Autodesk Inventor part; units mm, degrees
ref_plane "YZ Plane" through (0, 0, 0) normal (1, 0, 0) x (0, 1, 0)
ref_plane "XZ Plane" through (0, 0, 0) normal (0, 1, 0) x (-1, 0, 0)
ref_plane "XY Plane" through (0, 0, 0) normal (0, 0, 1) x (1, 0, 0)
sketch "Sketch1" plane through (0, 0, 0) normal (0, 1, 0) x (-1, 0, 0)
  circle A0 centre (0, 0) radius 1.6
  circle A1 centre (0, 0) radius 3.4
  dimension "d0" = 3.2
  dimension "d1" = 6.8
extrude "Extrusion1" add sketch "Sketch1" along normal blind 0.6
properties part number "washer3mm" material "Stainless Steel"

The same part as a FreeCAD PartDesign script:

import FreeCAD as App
import Part
import Sketcher
from FreeCAD import Vector
Q = App.Units.Quantity

doc = App.newDocument("Part")
body = doc.addObject("PartDesign::Body", "Body")

# Sketch on XZ plane
sketch1 = body.newObject("Sketcher::SketchObject", "Sketch")
sketch1.AttachmentSupport = (doc.getObject("XZ_Plane"), [""])
sketch1.MapMode = "FlatFace"
sketch1.addGeometry(Part.Circle(Vector(0, 0, 0), Vector(0, 0, 1), 3.4), False)
sketch1.addGeometry(Part.Circle(Vector(0, 0, 0), Vector(0, 0, 1), 1.6), False)
sketch1.addConstraint(Sketcher.Constraint("Coincident", 0, 3, -1, 1))
sketch1.addConstraint(Sketcher.Constraint("Coincident", 1, 3, -1, 1))
sketch1.addConstraint(Sketcher.Constraint("Diameter", 0, Q("6.8 mm")))
sketch1.addConstraint(Sketcher.Constraint("Diameter", 1, Q("3.2 mm")))
pad1 = body.newObject("PartDesign::Pad", "Pad")
pad1.Profile = sketch1
pad1.Length = 0.6
pad1.Reversed = True

doc.recompute()
